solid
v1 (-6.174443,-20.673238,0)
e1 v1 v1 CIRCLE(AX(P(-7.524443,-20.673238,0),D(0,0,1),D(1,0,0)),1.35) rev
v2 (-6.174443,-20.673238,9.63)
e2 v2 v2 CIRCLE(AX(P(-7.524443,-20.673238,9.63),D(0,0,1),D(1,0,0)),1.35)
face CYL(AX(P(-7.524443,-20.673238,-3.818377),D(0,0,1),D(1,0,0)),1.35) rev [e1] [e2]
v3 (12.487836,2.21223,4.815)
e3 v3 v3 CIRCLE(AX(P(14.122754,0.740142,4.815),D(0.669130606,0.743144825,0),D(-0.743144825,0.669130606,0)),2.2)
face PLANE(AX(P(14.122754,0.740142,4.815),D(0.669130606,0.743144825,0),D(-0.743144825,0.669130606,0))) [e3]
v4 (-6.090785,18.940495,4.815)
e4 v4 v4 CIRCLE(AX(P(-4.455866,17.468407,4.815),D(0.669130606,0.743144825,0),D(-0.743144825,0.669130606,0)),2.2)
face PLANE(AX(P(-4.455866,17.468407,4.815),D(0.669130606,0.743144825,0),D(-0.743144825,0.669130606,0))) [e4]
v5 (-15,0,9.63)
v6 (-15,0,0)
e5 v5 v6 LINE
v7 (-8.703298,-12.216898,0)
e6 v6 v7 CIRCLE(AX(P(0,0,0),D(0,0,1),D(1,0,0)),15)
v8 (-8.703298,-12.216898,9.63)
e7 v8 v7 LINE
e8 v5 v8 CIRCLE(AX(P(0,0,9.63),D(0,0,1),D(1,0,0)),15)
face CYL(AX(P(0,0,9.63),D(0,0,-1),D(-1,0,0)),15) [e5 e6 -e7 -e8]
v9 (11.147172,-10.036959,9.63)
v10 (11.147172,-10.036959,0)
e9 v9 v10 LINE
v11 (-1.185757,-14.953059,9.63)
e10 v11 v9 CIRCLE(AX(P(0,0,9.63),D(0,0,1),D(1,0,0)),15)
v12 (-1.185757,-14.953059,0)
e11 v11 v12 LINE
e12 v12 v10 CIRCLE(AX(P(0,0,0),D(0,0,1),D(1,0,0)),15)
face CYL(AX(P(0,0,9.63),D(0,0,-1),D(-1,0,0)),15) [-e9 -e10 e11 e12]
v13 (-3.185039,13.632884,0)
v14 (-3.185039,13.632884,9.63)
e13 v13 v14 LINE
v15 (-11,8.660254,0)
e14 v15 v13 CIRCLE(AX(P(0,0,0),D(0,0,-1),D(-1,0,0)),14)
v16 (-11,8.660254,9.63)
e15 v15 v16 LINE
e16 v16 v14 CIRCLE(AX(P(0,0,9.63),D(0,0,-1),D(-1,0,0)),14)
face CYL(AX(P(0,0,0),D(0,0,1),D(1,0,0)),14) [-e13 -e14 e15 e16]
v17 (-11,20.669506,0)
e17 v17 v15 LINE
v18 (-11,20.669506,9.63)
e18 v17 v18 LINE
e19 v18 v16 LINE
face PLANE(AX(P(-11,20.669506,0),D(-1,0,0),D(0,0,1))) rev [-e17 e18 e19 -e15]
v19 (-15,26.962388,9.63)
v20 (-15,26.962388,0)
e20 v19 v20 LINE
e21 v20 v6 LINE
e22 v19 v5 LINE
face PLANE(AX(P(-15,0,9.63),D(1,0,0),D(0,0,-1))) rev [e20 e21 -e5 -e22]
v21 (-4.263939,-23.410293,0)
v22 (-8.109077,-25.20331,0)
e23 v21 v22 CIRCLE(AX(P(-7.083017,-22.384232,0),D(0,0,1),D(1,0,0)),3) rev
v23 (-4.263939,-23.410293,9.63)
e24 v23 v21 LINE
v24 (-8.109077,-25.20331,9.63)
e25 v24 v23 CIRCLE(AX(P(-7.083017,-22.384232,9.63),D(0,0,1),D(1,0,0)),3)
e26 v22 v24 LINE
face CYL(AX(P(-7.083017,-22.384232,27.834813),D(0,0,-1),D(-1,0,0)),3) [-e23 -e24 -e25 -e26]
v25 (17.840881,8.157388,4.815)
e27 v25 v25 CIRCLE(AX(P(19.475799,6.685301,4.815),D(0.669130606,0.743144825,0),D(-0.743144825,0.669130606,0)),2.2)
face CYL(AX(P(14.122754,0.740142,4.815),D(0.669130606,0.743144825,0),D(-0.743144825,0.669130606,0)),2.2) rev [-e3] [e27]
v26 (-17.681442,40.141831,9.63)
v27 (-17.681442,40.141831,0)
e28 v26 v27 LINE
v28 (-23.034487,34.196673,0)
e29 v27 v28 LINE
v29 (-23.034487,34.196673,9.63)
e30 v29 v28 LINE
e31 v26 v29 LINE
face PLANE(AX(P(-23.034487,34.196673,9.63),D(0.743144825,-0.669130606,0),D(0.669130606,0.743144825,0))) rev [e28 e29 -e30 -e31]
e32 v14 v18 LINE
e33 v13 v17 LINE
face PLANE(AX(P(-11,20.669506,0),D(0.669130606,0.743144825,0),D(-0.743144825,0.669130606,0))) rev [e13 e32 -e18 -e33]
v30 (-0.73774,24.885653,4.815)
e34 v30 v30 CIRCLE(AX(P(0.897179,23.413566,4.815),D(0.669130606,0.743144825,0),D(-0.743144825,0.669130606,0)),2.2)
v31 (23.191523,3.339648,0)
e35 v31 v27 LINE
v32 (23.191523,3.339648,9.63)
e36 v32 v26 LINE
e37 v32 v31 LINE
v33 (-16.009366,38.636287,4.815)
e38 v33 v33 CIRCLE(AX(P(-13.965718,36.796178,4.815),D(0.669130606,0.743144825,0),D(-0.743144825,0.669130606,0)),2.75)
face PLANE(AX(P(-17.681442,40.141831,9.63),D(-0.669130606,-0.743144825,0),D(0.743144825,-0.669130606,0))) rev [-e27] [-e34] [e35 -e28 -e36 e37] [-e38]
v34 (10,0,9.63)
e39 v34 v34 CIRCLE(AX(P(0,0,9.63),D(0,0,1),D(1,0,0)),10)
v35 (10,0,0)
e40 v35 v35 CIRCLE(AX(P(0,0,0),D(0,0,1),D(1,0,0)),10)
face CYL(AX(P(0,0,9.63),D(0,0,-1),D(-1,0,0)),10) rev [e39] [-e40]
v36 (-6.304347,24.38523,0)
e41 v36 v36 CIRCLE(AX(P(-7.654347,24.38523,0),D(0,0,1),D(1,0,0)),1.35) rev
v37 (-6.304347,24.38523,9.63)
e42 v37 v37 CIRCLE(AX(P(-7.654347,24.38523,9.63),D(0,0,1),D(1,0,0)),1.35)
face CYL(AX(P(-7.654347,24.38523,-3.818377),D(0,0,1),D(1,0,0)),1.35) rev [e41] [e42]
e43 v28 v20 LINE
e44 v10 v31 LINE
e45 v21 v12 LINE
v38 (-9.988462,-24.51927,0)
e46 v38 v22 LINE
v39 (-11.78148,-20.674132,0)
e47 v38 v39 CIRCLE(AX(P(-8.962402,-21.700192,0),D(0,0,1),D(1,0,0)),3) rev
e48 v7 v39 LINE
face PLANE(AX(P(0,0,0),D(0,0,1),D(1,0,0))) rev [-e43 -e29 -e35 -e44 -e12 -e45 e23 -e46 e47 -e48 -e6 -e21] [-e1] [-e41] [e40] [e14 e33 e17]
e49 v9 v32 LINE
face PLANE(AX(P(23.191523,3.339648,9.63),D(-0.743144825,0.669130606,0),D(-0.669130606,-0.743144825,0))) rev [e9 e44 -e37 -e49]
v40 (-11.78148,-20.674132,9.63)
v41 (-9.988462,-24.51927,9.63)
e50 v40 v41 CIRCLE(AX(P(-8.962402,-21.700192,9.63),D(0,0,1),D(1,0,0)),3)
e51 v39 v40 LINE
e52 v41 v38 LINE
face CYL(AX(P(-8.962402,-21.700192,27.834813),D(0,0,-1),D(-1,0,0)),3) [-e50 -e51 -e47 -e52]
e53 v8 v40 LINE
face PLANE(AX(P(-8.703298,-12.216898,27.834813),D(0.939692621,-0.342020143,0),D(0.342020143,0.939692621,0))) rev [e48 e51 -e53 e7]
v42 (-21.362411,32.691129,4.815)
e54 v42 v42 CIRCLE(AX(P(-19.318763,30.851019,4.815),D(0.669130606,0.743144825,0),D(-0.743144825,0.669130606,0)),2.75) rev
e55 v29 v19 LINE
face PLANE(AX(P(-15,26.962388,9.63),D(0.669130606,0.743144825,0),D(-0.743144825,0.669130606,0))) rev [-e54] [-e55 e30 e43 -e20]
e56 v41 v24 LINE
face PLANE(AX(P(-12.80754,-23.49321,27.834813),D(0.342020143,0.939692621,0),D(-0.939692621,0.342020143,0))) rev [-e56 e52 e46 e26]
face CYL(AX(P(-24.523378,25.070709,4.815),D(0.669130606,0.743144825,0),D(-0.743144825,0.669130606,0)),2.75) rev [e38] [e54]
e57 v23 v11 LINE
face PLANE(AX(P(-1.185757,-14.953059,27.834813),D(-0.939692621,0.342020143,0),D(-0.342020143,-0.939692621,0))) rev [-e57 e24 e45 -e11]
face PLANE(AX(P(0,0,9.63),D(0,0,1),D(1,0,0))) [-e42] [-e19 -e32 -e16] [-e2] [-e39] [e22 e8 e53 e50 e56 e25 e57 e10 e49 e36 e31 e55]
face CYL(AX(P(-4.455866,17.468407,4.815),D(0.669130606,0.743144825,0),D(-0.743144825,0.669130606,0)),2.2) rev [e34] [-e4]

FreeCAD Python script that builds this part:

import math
import FreeCAD as App
import Part
import Sketcher
Q = App.Units.Quantity


def edges_at(feature, points):
    """Names of the edges that pass closest to the given points."""
    edges = feature.Shape.Edges
    near = lambda p: min(range(len(edges)), key=lambda i: edges[i].distToShape(Part.Vertex(*p))[0])
    return sorted({f"Edge{near(p) + 1}" for p in points})

doc = App.newDocument("Part")
body = doc.addObject("PartDesign::Body", "Body")

# Sketch on XY plane
sketch1 = doc.addObject("Sketcher::SketchObject", "Sketch")
body.addObject(sketch1)
sketch1.AttachmentSupport = (doc.XY_Plane, [""])
sketch1.MapMode = "FlatFace"
sketch1.addGeometry(Part.LineSegment(App.Vector(-15, 27, 0), App.Vector(-15, 0, 0)), False)
sketch1.addGeometry(Part.ArcOfCircle(Part.Circle(App.Vector(0, 0, 0), App.Vector(0, 0, 1), 15), math.radians(-180), math.radians(-42)), False)
sketch1.addGeometry(Part.LineSegment(App.Vector(11, -10, 0), App.Vector(18, -3, 0)), False)
sketch1.addGeometry(Part.LineSegment(App.Vector(18, -3, 0), App.Vector(23, 3, 0)), False)
sketch1.addGeometry(Part.LineSegment(App.Vector(23, 3, 0), App.Vector(-18, 40, 0)), False)
sketch1.addGeometry(Part.LineSegment(App.Vector(-18, 40, 0), App.Vector(-23, 34, 0)), False)
sketch1.addGeometry(Part.LineSegment(App.Vector(-23, 34, 0), App.Vector(-15, 27, 0)), False)
sketch1.addGeometry(Part.Circle(App.Vector(0, 0, 0), App.Vector(0, 0, 1), 10), False)
sketch1.addConstraint(Sketcher.Constraint("Tangent", 0, 2, 1, 1))
sketch1.addConstraint(Sketcher.Constraint("Tangent", 1, 2, 2, 1))
sketch1.addConstraint(Sketcher.Constraint("Coincident", 2, 2, 3, 1))
sketch1.addConstraint(Sketcher.Constraint("Coincident", 3, 2, 4, 1))
sketch1.addConstraint(Sketcher.Constraint("Coincident", 4, 2, 5, 1))
sketch1.addConstraint(Sketcher.Constraint("Coincident", 5, 2, 6, 1))
sketch1.addConstraint(Sketcher.Constraint("Coincident", 6, 2, 0, 1))
sketch1.addConstraint(Sketcher.Constraint("Vertical", 0))
sketch1.addConstraint(Sketcher.Constraint("Coincident", 1, 3, -1, 1))
sketch1.addConstraint(Sketcher.Constraint("Coincident", 7, 3, -1, 1))
sketch1.addConstraint(Sketcher.Constraint("Parallel", 2, 3))
sketch1.addConstraint(Sketcher.Constraint("Perpendicular", 3, 4))
sketch1.addConstraint(Sketcher.Constraint("Perpendicular", 4, 5))
sketch1.addConstraint(Sketcher.Constraint("Perpendicular", 5, 6))
sketch1.addConstraint(Sketcher.Constraint("Equal", 3, 5))
sketch1.addConstraint(Sketcher.Constraint("Diameter", 7, 20.0))
sketch1.addConstraint(Sketcher.Constraint("Radius", 1, 15.0))
sketch1.addConstraint(Sketcher.Constraint("Angle", 2, Q("48 deg")))
sketch1.addConstraint(Sketcher.Constraint("Distance", 2, 10.0))
sketch1.addConstraint(Sketcher.Constraint("Distance", 3, 8.0))
sketch1.addConstraint(Sketcher.Constraint("Distance", 4, 55.0))
pad1 = doc.addObject("PartDesign::Pad", "Pad")
body.addObject(pad1)
pad1.Profile = sketch1
pad1.Length = 9.63

# Sketch on XY plane
sketch2 = doc.addObject("Sketcher::SketchObject", "Sketch001")
body.addObject(sketch2)
sketch2.AttachmentSupport = (doc.XY_Plane, [""])
sketch2.MapMode = "FlatFace"
sketch2.addGeometry(Part.LineSegment(App.Vector(-1, -15, 0), App.Vector(-9, -12, 0)), False)
sketch2.addGeometry(Part.LineSegment(App.Vector(-9, -12, 0), App.Vector(-13, -23, 0)), False)
sketch2.addGeometry(Part.LineSegment(App.Vector(-13, -23, 0), App.Vector(-5, -26, 0)), False)
sketch2.addGeometry(Part.LineSegment(App.Vector(-5, -26, 0), App.Vector(-1, -15, 0)), False)
sketch2.addConstraint(Sketcher.Constraint("Coincident", 0, 2, 1, 1))
sketch2.addConstraint(Sketcher.Constraint("Coincident", 1, 2, 2, 1))
sketch2.addConstraint(Sketcher.Constraint("Coincident", 2, 2, 3, 1))
sketch2.addConstraint(Sketcher.Constraint("Coincident", 3, 2, 0, 1))
sketch2.addConstraint(Sketcher.Constraint("Perpendicular", 0, 1))
sketch2.addConstraint(Sketcher.Constraint("Perpendicular", 1, 2))
sketch2.addConstraint(Sketcher.Constraint("Perpendicular", 2, 3))
sketch2.addConstraint(Sketcher.Constraint("Angle", 0, Q("160 deg")))
sketch2.addConstraint(Sketcher.Constraint("Distance", 0, 8.0))
sketch2.addConstraint(Sketcher.Constraint("Distance", 1, 12.0))
sketch2.addConstraint(Sketcher.Constraint("DistanceX", 2, 2, -1, 1, 5.289999))
sketch2.addConstraint(Sketcher.Constraint("DistanceY", 0, 2, -1, 1, 12.216898))
pad2 = doc.addObject("PartDesign::Pad", "Pad001")
body.addObject(pad2)
pad2.Profile = sketch2
pad2.Length = 9.63

# Sketch on XY plane
sketch3 = doc.addObject("Sketcher::SketchObject", "Sketch002")
body.addObject(sketch3)
sketch3.AttachmentSupport = (doc.XY_Plane, [""])
sketch3.MapMode = "FlatFace"
sketch3.AttachmentOffset = App.Placement(App.Vector(0, 0, 9.63), App.Rotation())
sketch3.addGeometry(Part.Circle(App.Vector(-7.5, -20.7, 0), App.Vector(0, 0, 1), 1.4), False)
sketch3.addConstraint(Sketcher.Constraint("Diameter", 0, 2.7))
sketch3.addConstraint(Sketcher.Constraint("DistanceX", 0, 3, -1, 1, 7.524443))
sketch3.addConstraint(Sketcher.Constraint("DistanceY", 0, 3, -1, 1, 20.673238))
pocket1 = doc.addObject("PartDesign::Pocket", "Pocket")
body.addObject(pocket1)
pocket1.Profile = sketch3
pocket1.Length = 9.63
doc.recompute()

fillet = doc.addObject("PartDesign::Fillet", "Fillet")
body.addObject(fillet)
fillet.Base = (pocket1, edges_at(pocket1, [(-12.808, -23.493, 4.815), (-5.29, -26.229, 4.815)]))
fillet.Radius = 3

# Sketch on an angled plane
sketch4 = doc.addObject("Sketcher::SketchObject", "Sketch003")
body.addObject(sketch4)
sketch4.Placement = App.Placement(App.Vector(12.044351, 13.376607, 0), App.Rotation(App.Vector(0.743144825, -0.669130606, 0), App.Vector(0, 0, -0.999999999), App.Vector(0.669130606, 0.743144825, 0), "ZXY"))
sketch4.addGeometry(Part.Circle(App.Vector(-35, -4.8, 0), App.Vector(0, 0, 1), 2.8), False)
sketch4.addConstraint(Sketcher.Constraint("Diameter", 0, 5.5))
sketch4.addConstraint(Sketcher.Constraint("DistanceX", 0, 3, -1, 1, 35.0))
sketch4.addConstraint(Sketcher.Constraint("DistanceY", 0, 3, -1, 1, 4.815))
pocket2 = doc.addObject("PartDesign::Pocket", "Pocket001")
body.addObject(pocket2)
pocket2.Profile = sketch4
pocket2.Length = 8

# Sketch on an angled plane
sketch5 = doc.addObject("Sketcher::SketchObject", "Sketch004")
body.addObject(sketch5)
sketch5.Placement = App.Placement(App.Vector(12.044351, 13.376607, 0), App.Rotation(App.Vector(0.743144825, -0.669130606, 0), App.Vector(0, 0, -0.999999999), App.Vector(0.669130606, 0.743144825, 0), "ZXY"))
sketch5.addGeometry(Part.Circle(App.Vector(-15, -4.8, 0), App.Vector(0, 0, 1), 2.2), False)
sketch5.addGeometry(Part.Circle(App.Vector(10, -4.8, 0), App.Vector(0, 0, 1), 2.2), False)
sketch5.addConstraint(Sketcher.Constraint("Equal", 0, 1))
sketch5.addConstraint(Sketcher.Constraint("Horizontal", 0, 3, 1, 3))
sketch5.addConstraint(Sketcher.Constraint("Diameter", 0, 4.4))
sketch5.addConstraint(Sketcher.Constraint("DistanceX", 0, 3, -1, 1, 15.0))
sketch5.addConstraint(Sketcher.Constraint("DistanceX", -1, 1, 1, 3, 10.0))
sketch5.addConstraint(Sketcher.Constraint("DistanceY", 0, 3, -1, 1, 4.815))
pocket3 = doc.addObject("PartDesign::Pocket", "Pocket002")
body.addObject(pocket3)
pocket3.Profile = sketch5
pocket3.Length = 8

# Sketch on XY plane
sketch6 = doc.addObject("Sketcher::SketchObject", "Sketch005")
body.addObject(sketch6)
sketch6.AttachmentSupport = (doc.XY_Plane, [""])
sketch6.MapMode = "FlatFace"
sketch6.AttachmentOffset = App.Placement(App.Vector(0, 0, 9.63), App.Rotation())
sketch6.addGeometry(Part.LineSegment(App.Vector(-11, 21, 0), App.Vector(-11, 9, 0)), False)
sketch6.addGeometry(Part.ArcOfCircle(Part.Circle(App.Vector(0, 0, 0), App.Vector(0, 0, 1), 14), math.radians(103), math.radians(142)), False)
sketch6.addGeometry(Part.LineSegment(App.Vector(-3, 14, 0), App.Vector(-11, 21, 0)), False)
sketch6.addConstraint(Sketcher.Constraint("Coincident", 0, 2, 1, 2))
sketch6.addConstraint(Sketcher.Constraint("Coincident", 1, 1, 2, 1))
sketch6.addConstraint(Sketcher.Constraint("Coincident", 2, 2, 0, 1))
sketch6.addConstraint(Sketcher.Constraint("Vertical", 0))
sketch6.addConstraint(Sketcher.Constraint("Coincident", 1, 3, -1, 1))
sketch6.addConstraint(Sketcher.Constraint("Radius", 1, 14.0))
sketch6.addConstraint(Sketcher.Constraint("Angle", 2, Q("138 deg")))
sketch6.addConstraint(Sketcher.Constraint("DistanceX", 0, 2, -1, 1, 11.0))
sketch6.addConstraint(Sketcher.Constraint("DistanceY", 0, 2, 0, 1, 12.009252))
pocket4 = doc.addObject("PartDesign::Pocket", "Pocket003")
body.addObject(pocket4)
pocket4.Profile = sketch6
pocket4.Length = 9.63

# Sketch on XY plane
sketch7 = doc.addObject("Sketcher::SketchObject", "Sketch006")
body.addObject(sketch7)
sketch7.AttachmentSupport = (doc.XY_Plane, [""])
sketch7.MapMode = "FlatFace"
sketch7.AttachmentOffset = App.Placement(App.Vector(0, 0, 9.63), App.Rotation())
sketch7.addGeometry(Part.Circle(App.Vector(-7.7, 24.4, 0), App.Vector(0, 0, 1), 1.4), False)
sketch7.addConstraint(Sketcher.Constraint("Diameter", 0, 2.7))
sketch7.addConstraint(Sketcher.Constraint("DistanceY", -1, 1, 0, 3, 24.38523))
sketch7.addConstraint(Sketcher.Constraint("DistanceX", 0, 3, -1, 1, 7.654347))
pocket5 = doc.addObject("PartDesign::Pocket", "Pocket004")
body.addObject(pocket5)
pocket5.Profile = sketch7
pocket5.Length = 9.63

doc.recompute()
